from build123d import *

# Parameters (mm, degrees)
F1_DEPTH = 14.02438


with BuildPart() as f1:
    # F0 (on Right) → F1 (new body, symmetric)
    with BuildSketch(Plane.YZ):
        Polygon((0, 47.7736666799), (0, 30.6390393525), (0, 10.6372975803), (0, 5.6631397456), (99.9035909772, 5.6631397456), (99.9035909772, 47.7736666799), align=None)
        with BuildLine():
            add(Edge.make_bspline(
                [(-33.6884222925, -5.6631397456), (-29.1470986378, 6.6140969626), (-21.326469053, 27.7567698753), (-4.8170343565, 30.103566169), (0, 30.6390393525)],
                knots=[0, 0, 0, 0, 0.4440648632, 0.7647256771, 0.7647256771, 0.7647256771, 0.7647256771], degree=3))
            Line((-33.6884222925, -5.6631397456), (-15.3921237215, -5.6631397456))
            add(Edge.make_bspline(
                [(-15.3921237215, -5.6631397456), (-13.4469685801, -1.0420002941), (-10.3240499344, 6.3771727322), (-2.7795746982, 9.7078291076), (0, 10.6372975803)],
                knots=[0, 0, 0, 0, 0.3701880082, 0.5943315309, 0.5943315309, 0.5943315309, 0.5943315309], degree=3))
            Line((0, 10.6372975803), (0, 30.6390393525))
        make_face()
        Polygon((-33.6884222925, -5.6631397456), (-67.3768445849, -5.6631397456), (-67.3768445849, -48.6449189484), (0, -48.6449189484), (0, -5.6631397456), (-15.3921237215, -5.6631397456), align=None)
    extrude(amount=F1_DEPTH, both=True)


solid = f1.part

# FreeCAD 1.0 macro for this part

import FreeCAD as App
import Part
import Sketcher

V = App.Vector

doc = App.newDocument("Part")
body = doc.addObject("PartDesign::Body", "Body")

# Sketch on YZ plane
sketch1 = doc.addObject("Sketcher::SketchObject", "Sketch")
body.addObject(sketch1)
sketch1.AttachmentSupport = (doc.YZ_Plane, [""])
sketch1.MapMode = "FlatFace"
sketch1.addGeometry(Part.LineSegment(V(0, 47.773667, 0), V(0, 30.639039, 0)), False)
sketch1.addGeometry(Part.BSplineCurve([V(-33.688422, -5.66314, 0), V(-29.147099, 6.614097, 0), V(-21.326469, 27.75677, 0), V(-4.817034, 30.103566, 0), V(0, 30.639039, 0)], [4, 1, 4], [0, 0.444064863, 0.764725677], False, 3, [1, 1, 1, 1, 1], False), False)
sketch1.addGeometry(Part.LineSegment(V(-33.688422, -5.66314, 0), V(-67.376845, -5.66314, 0)), False)
sketch1.addGeometry(Part.LineSegment(V(-67.376845, -5.66314, 0), V(-67.376845, -48.644919, 0)), False)
sketch1.addGeometry(Part.LineSegment(V(-67.376845, -48.644919, 0), V(0, -48.644919, 0)), False)
sketch1.addGeometry(Part.LineSegment(V(0, -48.644919, 0), V(0, -5.66314, 0)), False)
sketch1.addGeometry(Part.LineSegment(V(0, -5.66314, 0), V(-15.392124, -5.66314, 0)), False)
sketch1.addGeometry(Part.BSplineCurve([V(-15.392124, -5.66314, 0), V(-13.446969, -1.042, 0), V(-10.32405, 6.377173, 0), V(-2.779575, 9.707829, 0), V(0, 10.637298, 0)], [4, 1, 4], [0, 0.370188008, 0.594331531], False, 3, [1, 1, 1, 1, 1], False), False)
sketch1.addGeometry(Part.LineSegment(V(0, 10.637298, 0), V(0, 5.66314, 0)), False)
sketch1.addGeometry(Part.LineSegment(V(0, 5.66314, 0), V(99.903591, 5.66314, 0)), False)
sketch1.addGeometry(Part.LineSegment(V(99.903591, 5.66314, 0), V(99.903591, 47.773667, 0)), False)
sketch1.addGeometry(Part.LineSegment(V(99.903591, 47.773667, 0), V(0, 47.773667, 0)), False)
sketch1.addConstraint(Sketcher.Constraint("Block", 1))
sketch1.addConstraint(Sketcher.Constraint("Block", 7))
sketch1.addConstraint(Sketcher.Constraint("Coincident", 0, 2, 1, 2))
sketch1.addConstraint(Sketcher.Constraint("Coincident", 1, 1, 2, 1))
sketch1.addConstraint(Sketcher.Constraint("Coincident", 2, 2, 3, 1))
sketch1.addConstraint(Sketcher.Constraint("Coincident", 3, 2, 4, 1))
sketch1.addConstraint(Sketcher.Constraint("Coincident", 4, 2, 5, 1))
sketch1.addConstraint(Sketcher.Constraint("Coincident", 5, 2, 6, 1))
sketch1.addConstraint(Sketcher.Constraint("Coincident", 6, 2, 7, 1))
sketch1.addConstraint(Sketcher.Constraint("Coincident", 7, 2, 8, 1))
sketch1.addConstraint(Sketcher.Constraint("Coincident", 8, 2, 9, 1))
sketch1.addConstraint(Sketcher.Constraint("Coincident", 9, 2, 10, 1))
sketch1.addConstraint(Sketcher.Constraint("Coincident", 10, 2, 11, 1))
sketch1.addConstraint(Sketcher.Constraint("Coincident", 11, 2, 0, 1))
sketch1.addConstraint(Sketcher.Constraint("Vertical", 0))
sketch1.addConstraint(Sketcher.Constraint("Horizontal", 2))
sketch1.addConstraint(Sketcher.Constraint("Vertical", 3))
sketch1.addConstraint(Sketcher.Constraint("Horizontal", 4))
sketch1.addConstraint(Sketcher.Constraint("Vertical", 5))
sketch1.addConstraint(Sketcher.Constraint("Horizontal", 6))
sketch1.addConstraint(Sketcher.Constraint("Vertical", 8))
sketch1.addConstraint(Sketcher.Constraint("Horizontal", 9))
sketch1.addConstraint(Sketcher.Constraint("Vertical", 10))
sketch1.addConstraint(Sketcher.Constraint("Horizontal", 11))
sketch1.addConstraint(Sketcher.Constraint("Symmetric", 5, 2, 8, 2, -1, 1))
sketch1.addConstraint(Sketcher.Constraint("DistanceX", 9, 1, 9, 2, 99.903591))
sketch1.addConstraint(Sketcher.Constraint("DistanceY", 3, 2, 3, 1, 42.981779))
sketch1.addConstraint(Sketcher.Constraint("DistanceX", 2, 2, 2, 1, 33.688422))
sketch1.addConstraint(Sketcher.Constraint("DistanceY", 0, 2, 0, 1, 17.134627))
pad1 = doc.addObject("PartDesign::Pad", "Pad")
body.addObject(pad1)
pad1.Profile = sketch1
pad1.Length = 28.04876
pad1.Midplane = True

doc.recompute()
